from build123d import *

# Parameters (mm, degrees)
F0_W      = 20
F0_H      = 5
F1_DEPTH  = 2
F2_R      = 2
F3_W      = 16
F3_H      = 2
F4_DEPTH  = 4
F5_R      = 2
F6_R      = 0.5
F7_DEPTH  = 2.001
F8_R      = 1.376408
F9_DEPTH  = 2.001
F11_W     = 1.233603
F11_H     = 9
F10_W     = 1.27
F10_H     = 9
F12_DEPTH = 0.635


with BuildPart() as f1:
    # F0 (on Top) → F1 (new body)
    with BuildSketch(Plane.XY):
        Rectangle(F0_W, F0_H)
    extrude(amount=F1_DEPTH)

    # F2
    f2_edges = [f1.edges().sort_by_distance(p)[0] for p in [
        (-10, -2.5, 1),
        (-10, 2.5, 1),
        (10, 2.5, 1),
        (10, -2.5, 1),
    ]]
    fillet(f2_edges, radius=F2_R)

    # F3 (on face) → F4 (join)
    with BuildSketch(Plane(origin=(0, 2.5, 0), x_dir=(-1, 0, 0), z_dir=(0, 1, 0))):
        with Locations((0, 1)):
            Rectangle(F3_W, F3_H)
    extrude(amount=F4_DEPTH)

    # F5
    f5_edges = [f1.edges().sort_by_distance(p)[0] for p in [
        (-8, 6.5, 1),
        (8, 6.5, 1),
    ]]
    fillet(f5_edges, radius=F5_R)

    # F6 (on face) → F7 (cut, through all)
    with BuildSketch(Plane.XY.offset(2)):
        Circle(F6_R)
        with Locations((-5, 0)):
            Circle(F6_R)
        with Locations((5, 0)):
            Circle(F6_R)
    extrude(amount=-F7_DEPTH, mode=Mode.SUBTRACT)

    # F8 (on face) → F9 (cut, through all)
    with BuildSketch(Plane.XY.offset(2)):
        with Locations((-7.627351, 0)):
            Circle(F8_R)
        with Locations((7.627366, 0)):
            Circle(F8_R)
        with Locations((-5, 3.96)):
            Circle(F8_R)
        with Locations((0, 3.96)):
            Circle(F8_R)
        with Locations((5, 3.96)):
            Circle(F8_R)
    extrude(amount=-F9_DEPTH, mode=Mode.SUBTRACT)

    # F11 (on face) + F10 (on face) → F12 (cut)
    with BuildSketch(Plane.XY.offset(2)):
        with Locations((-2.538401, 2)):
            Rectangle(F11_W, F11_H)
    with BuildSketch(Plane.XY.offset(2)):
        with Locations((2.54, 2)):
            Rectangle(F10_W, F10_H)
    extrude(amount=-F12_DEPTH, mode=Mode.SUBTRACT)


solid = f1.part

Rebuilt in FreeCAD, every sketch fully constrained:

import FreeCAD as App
import Part
import Sketcher
from FreeCAD import Vector
Q = App.Units.Quantity


def edges_at(feature, points):
    """Names of the edges that pass closest to the given points."""
    edges = feature.Shape.Edges
    near = lambda p: min(range(len(edges)), key=lambda i: edges[i].distToShape(Part.Vertex(*p))[0])
    return sorted({f"Edge{near(p) + 1}" for p in points})

doc = App.newDocument("Part")
body = doc.addObject("PartDesign::Body", "Body")

sketch1 = body.newObject("Sketcher::SketchObject", "Sketch")
sketch1.AttachmentSupport = (doc.getObject("XY_Plane"), [""])
sketch1.MapMode = "FlatFace"
sketch1.addGeometry([
    Part.LineSegment(Vector(-10, 2, 0), Vector(-10, -2, 0)),
    Part.LineSegment(Vector(-10, -2, 0), Vector(10, -2, 0)),
    Part.LineSegment(Vector(10, -2, 0), Vector(10, 2, 0)),
    Part.LineSegment(Vector(10, 2, 0), Vector(-10, 2, 0)),
], False)
sketch1.addConstraint([
    Sketcher.Constraint("Coincident", 0, 2, 1, 1),
    Sketcher.Constraint("Coincident", 1, 2, 2, 1),
    Sketcher.Constraint("Coincident", 2, 2, 3, 1),
    Sketcher.Constraint("Coincident", 3, 2, 0, 1),
    Sketcher.Constraint("Vertical", 0),
    Sketcher.Constraint("Horizontal", 1),
    Sketcher.Constraint("Vertical", 2),
    Sketcher.Constraint("Horizontal", 3),
    Sketcher.Constraint("Symmetric", 0, 2, 2, 2, -1, 1),
    Sketcher.Constraint("DistanceX", 1, 1, 1, 2, Q("20 mm")),
    Sketcher.Constraint("DistanceY", 0, 2, 0, 1, Q("5 mm")),
])
pad1 = body.newObject("PartDesign::Pad", "Pad")
pad1.Profile = sketch1
pad1.Length = 2
doc.recompute()

fillet = body.newObject("PartDesign::Fillet", "Fillet")
fillet.Base = (pad1, edges_at(pad1, [
    (-10, -2.5, 1),
    (-10, 2.5, 1),
    (10, 2.5, 1),
    (10, -2.5, 1),
]))
fillet.Radius = 2

sketch2 = body.newObject("Sketcher::SketchObject", "Sketch001")
sketch2.AttachmentSupport = (doc.getObject("XZ_Plane"), [""])
sketch2.MapMode = "FlatFace"
sketch2.AttachmentOffset = App.Placement(Vector(0, 0, -2.5), App.Rotation())
sketch2.addGeometry([
    Part.LineSegment(Vector(8, 2, 0), Vector(8, 0, 0)),
    Part.LineSegment(Vector(8, 0, 0), Vector(-8, 0, 0)),
    Part.LineSegment(Vector(-8, 0, 0), Vector(-8, 2, 0)),
    Part.LineSegment(Vector(-8, 2, 0), Vector(8, 2, 0)),
], False)
sketch2.addConstraint([
    Sketcher.Constraint("Coincident", 0, 2, 1, 1),
    Sketcher.Constraint("Coincident", 1, 2, 2, 1),
    Sketcher.Constraint("Coincident", 2, 2, 3, 1),
    Sketcher.Constraint("Coincident", 3, 2, 0, 1),
    Sketcher.Constraint("Vertical", 0),
    Sketcher.Constraint("Horizontal", 1),
    Sketcher.Constraint("Vertical", 2),
    Sketcher.Constraint("Horizontal", 3),
    Sketcher.Constraint("Symmetric", 0, 2, 1, 2, -1, 1),
    Sketcher.Constraint("DistanceX", 1, 2, 1, 1, Q("16 mm")),
    Sketcher.Constraint("DistanceY", 0, 2, 0, 1, Q("2 mm")),
])
pad2 = body.newObject("PartDesign::Pad", "Pad001")
pad2.Profile = sketch2
pad2.Length = 4
pad2.Reversed = True
doc.recompute()

fillet2 = body.newObject("PartDesign::Fillet", "Fillet001")
fillet2.Base = (pad2, edges_at(pad2, [(-8, 6.5, 1), (8, 6.5, 1)]))
fillet2.Radius = 2

sketch3 = body.newObject("Sketcher::SketchObject", "Sketch002")
sketch3.AttachmentSupport = (doc.getObject("XY_Plane"), [""])
sketch3.MapMode = "FlatFace"
sketch3.AttachmentOffset = App.Placement(Vector(0, 0, 2), App.Rotation())
sketch3.addGeometry([
    Part.Circle(Vector(0, 0, 0), Vector(0, 0, 1), 0.5),
    Part.Circle(Vector(-5, 0, 0), Vector(0, 0, 1), 0.5),
    Part.Circle(Vector(5, 0, 0), Vector(0, 0, 1), 0.5),
], False)
sketch3.addConstraint([
    Sketcher.Constraint("Coincident", 0, 3, -1, 1),
    Sketcher.Constraint("Equal", 0, 1),
    Sketcher.Constraint("Equal", 1, 2),
    Sketcher.Constraint("Symmetric", 1, 3, 2, 3, -1, 1),
    Sketcher.Constraint("PointOnObject", 1, 3, -1),
    Sketcher.Constraint("Diameter", 0, Q("1 mm")),
    Sketcher.Constraint("DistanceX", 1, 3, -1, 1, Q("5 mm")),
])
pocket1 = body.newObject("PartDesign::Pocket", "Pocket")
pocket1.Profile = sketch3
pocket1.Type = "ThroughAll"

sketch4 = body.newObject("Sketcher::SketchObject", "Sketch003")
sketch4.AttachmentSupport = (doc.getObject("XY_Plane"), [""])
sketch4.MapMode = "FlatFace"
sketch4.AttachmentOffset = App.Placement(Vector(0, 0, 2), App.Rotation())
sketch4.addGeometry([
    Part.Circle(Vector(-7.6, 0, 0), Vector(0, 0, 1), 1.4),
    Part.Circle(Vector(7.6, 0, 0), Vector(0, 0, 1), 1.4),
    Part.Circle(Vector(-5, 4, 0), Vector(0, 0, 1), 1.4),
    Part.Circle(Vector(0, 4, 0), Vector(0, 0, 1), 1.4),
    Part.Circle(Vector(5, 4, 0), Vector(0, 0, 1), 1.4),
], False)
sketch4.addConstraint([
    Sketcher.Constraint("Equal", 0, 1),
    Sketcher.Constraint("Equal", 1, 2),
    Sketcher.Constraint("Equal", 2, 3),
    Sketcher.Constraint("Equal", 3, 4),
    Sketcher.Constraint("Symmetric", 2, 3, 4, 3, -2),
    Sketcher.Constraint("PointOnObject", 0, 3, -1),
    Sketcher.Constraint("PointOnObject", 1, 3, -1),
    Sketcher.Constraint("PointOnObject", 3, 3, -2),
    Sketcher.Constraint("Horizontal", 2, 3, 3, 3),
    Sketcher.Constraint("DistanceX", 2, 3, -1, 1, Q("5 mm")),
    Sketcher.Constraint("DistanceY", -1, 1, 2, 3, Q("3.96 mm")),
    Sketcher.Constraint("Diameter", 0, Q("2.752816 mm")),
    Sketcher.Constraint("DistanceX", 0, 3, -1, 1, Q("7.627351 mm")),
    Sketcher.Constraint("DistanceX", -1, 1, 1, 3, Q("7.627366 mm")),
])
pocket2 = body.newObject("PartDesign::Pocket", "Pocket001")
pocket2.Profile = sketch4
pocket2.Type = "ThroughAll"

sketch5 = body.newObject("Sketcher::SketchObject", "Sketch004")
sketch5.AttachmentSupport = (doc.getObject("XY_Plane"), [""])
sketch5.MapMode = "FlatFace"
sketch5.AttachmentOffset = App.Placement(Vector(0, 0, 2), App.Rotation())
sketch5.addGeometry([
    Part.LineSegment(Vector(-3.2, 6.5, 0), Vector(-3.2, -2.5, 0)),
    Part.LineSegment(Vector(-3.2, -2.5, 0), Vector(-1.9, -2.5, 0)),
    Part.LineSegment(Vector(-1.9, -2.5, 0), Vector(-1.9, 6.5, 0)),
    Part.LineSegment(Vector(-1.9, 6.5, 0), Vector(-3.2, 6.5, 0)),
    Part.LineSegment(Vector(1.9, 6.5, 0), Vector(1.9, -2.5, 0)),
    Part.LineSegment(Vector(1.9, -2.5, 0), Vector(3.2, -2.5, 0)),
    Part.LineSegment(Vector(3.2, -2.5, 0), Vector(3.2, 6.5, 0)),
    Part.LineSegment(Vector(3.2, 6.5, 0), Vector(1.9, 6.5, 0)),
], False)
sketch5.addConstraint([
    Sketcher.Constraint("Coincident", 0, 2, 1, 1),
    Sketcher.Constraint("Coincident", 1, 2, 2, 1),
    Sketcher.Constraint("Coincident", 2, 2, 3, 1),
    Sketcher.Constraint("Coincident", 3, 2, 0, 1),
    Sketcher.Constraint("Coincident", 4, 2, 5, 1),
    Sketcher.Constraint("Coincident", 5, 2, 6, 1),
    Sketcher.Constraint("Coincident", 6, 2, 7, 1),
    Sketcher.Constraint("Coincident", 7, 2, 4, 1),
    Sketcher.Constraint("Vertical", 0),
    Sketcher.Constraint("Horizontal", 1),
    Sketcher.Constraint("Vertical", 2),
    Sketcher.Constraint("Horizontal", 3),
    Sketcher.Constraint("Vertical", 4),
    Sketcher.Constraint("Horizontal", 5),
    Sketcher.Constraint("Vertical", 6),
    Sketcher.Constraint("Horizontal", 7),
    Sketcher.Constraint("Horizontal", 1, 2, 4, 2),
    Sketcher.Constraint("Horizontal", 3, 2, 6, 2),
    Sketcher.Constraint("DistanceY", 0, 2, 0, 1, Q("9 mm")),
    Sketcher.Constraint("DistanceX", 5, 1, 5, 2, Q("1.27 mm")),
    Sketcher.Constraint("DistanceY", 0, 2, -1, 1, Q("2.5 mm")),
    Sketcher.Constraint("DistanceX", -1, 1, 4, 2, Q("1.905 mm")),
    Sketcher.Constraint("DistanceX", 1, 2, -1, 1, Q("1.921599 mm")),
    Sketcher.Constraint("DistanceX", 1, 1, 1, 2, Q("1.233603 mm")),
])
pocket3 = body.newObject("PartDesign::Pocket", "Pocket002")
pocket3.Profile = sketch5
pocket3.Length = 0.635

doc.recompute()
